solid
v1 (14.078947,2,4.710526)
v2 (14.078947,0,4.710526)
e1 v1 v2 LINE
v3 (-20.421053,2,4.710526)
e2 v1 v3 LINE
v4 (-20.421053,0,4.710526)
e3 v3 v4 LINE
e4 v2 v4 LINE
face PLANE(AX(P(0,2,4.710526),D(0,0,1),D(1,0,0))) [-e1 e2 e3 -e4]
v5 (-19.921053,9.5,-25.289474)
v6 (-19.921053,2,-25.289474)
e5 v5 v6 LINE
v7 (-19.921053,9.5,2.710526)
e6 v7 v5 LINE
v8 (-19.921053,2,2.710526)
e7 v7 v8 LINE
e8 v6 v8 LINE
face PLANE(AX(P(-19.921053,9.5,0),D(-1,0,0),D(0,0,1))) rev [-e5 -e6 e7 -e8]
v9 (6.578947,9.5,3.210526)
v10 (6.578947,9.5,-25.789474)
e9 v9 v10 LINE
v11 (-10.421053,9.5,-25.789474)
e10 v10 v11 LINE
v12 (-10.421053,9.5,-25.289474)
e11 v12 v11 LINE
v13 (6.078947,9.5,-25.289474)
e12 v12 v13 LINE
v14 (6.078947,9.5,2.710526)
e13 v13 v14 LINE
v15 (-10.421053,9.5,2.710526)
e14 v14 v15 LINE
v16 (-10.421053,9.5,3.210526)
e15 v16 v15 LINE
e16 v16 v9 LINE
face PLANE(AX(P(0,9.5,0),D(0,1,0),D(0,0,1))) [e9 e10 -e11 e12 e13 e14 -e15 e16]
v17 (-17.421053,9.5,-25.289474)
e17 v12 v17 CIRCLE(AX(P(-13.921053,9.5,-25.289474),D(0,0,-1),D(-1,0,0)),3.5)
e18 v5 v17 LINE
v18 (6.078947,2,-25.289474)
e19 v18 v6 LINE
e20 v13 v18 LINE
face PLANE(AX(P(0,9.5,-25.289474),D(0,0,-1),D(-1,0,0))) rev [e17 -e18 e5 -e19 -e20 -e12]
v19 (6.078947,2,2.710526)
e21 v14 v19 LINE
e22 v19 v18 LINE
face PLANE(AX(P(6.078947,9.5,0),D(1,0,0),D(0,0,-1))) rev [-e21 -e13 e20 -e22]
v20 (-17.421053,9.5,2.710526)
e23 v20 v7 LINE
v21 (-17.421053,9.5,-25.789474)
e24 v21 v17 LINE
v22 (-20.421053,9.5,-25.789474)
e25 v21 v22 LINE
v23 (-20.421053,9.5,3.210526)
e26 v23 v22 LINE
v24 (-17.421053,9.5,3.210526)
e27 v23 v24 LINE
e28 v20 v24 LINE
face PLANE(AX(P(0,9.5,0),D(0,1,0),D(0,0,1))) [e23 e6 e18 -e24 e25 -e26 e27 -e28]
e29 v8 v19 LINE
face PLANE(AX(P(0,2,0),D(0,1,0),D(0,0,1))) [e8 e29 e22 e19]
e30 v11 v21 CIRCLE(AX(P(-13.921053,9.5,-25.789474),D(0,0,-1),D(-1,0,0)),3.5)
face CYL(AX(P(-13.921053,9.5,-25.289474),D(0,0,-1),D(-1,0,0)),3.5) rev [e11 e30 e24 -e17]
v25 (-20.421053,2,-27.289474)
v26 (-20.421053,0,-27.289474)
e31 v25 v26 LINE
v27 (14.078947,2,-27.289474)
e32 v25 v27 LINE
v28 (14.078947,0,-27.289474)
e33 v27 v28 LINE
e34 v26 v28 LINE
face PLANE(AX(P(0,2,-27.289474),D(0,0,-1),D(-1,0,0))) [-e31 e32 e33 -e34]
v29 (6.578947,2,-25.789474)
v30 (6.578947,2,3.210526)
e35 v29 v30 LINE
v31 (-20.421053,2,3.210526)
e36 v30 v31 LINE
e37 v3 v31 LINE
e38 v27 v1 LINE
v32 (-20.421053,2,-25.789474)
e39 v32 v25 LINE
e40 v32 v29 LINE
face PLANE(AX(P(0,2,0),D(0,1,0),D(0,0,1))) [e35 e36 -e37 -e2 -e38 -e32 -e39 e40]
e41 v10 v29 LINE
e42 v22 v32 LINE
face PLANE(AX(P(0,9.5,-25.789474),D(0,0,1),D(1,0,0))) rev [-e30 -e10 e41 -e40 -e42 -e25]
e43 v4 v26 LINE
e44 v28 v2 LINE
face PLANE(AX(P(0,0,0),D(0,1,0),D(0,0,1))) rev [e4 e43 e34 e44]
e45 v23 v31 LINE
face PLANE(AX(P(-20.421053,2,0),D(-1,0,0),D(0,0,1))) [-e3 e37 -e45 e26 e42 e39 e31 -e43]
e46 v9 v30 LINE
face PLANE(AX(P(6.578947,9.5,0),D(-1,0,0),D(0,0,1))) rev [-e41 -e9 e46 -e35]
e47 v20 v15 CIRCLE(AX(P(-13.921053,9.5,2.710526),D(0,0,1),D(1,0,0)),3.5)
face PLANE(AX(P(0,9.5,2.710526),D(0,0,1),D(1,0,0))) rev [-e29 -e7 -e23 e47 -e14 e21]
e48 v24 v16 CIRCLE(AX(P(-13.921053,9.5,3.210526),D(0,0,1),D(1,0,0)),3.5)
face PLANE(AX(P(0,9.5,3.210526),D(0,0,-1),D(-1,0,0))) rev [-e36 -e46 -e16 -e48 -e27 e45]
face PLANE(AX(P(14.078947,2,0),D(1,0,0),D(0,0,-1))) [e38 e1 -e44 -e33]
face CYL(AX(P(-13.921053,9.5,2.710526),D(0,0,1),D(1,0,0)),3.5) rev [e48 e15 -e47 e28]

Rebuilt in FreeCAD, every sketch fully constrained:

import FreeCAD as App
import Part
import Sketcher
Q = App.Units.Quantity


def add_polygon(sketch, points):
    """Adds a closed chain of lines whose ends are joined by coincident constraints."""
    first, n = sketch.GeometryCount, len(points)
    for a, b in zip(points, points[1:] + points[:1]):
        sketch.addGeometry(Part.LineSegment(App.Vector(*a, 0), App.Vector(*b, 0)), False)
    for i in range(n):
        sketch.addConstraint(Sketcher.Constraint("Coincident", first + i, 2, first + (i + 1) % n, 1))

doc = App.newDocument("Part")
body = doc.addObject("PartDesign::Body", "Body")

# Sketch on XZ plane
sketch1 = body.newObject("Sketcher::SketchObject", "Sketch")
sketch1.AttachmentSupport = (doc.getObject("XZ_Plane"), [""])
sketch1.MapMode = "FlatFace"
add_polygon(sketch1, [(-20, -27), (-20, 5), (14, 5), (14, -27)])  # lines 0-3
sketch1.addConstraint([
    Sketcher.Constraint("Vertical", 0),
    Sketcher.Constraint("Horizontal", 1),
    Sketcher.Constraint("Vertical", 2),
    Sketcher.Constraint("Horizontal", 3),
    Sketcher.Constraint("DistanceY", 0, 1, 0, 2, Q("32 mm")),
    Sketcher.Constraint("DistanceX", 1, 1, 1, 2, Q("34.5 mm")),
    Sketcher.Constraint("DistanceX", 0, 2, -1, 1, Q("20.421053 mm")),
    Sketcher.Constraint("DistanceY", -1, 1, 0, 2, Q("4.710526 mm")),
])
pad1 = body.newObject("PartDesign::Pad", "Pad")
pad1.Profile = sketch1
pad1.Length = 2
pad1.Reversed = True

# Sketch on XZ plane
sketch2 = body.newObject("Sketcher::SketchObject", "Sketch001")
sketch2.AttachmentSupport = (doc.getObject("XZ_Plane"), [""])
sketch2.MapMode = "FlatFace"
add_polygon(sketch2, [(-20, -26), (-20, 3), (7, 3), (7, -26)])  # lines 0-3
add_polygon(sketch2, [(6, 3), (-20, 3), (-20, -25), (6, -25)])  # lines 4-7
sketch2.addConstraint([
    Sketcher.Constraint("Vertical", 0),
    Sketcher.Constraint("Horizontal", 1),
    Sketcher.Constraint("Vertical", 2),
    Sketcher.Constraint("Horizontal", 3),
    Sketcher.Constraint("Horizontal", 4),
    Sketcher.Constraint("Vertical", 5),
    Sketcher.Constraint("Horizontal", 6),
    Sketcher.Constraint("Vertical", 7),
    Sketcher.Constraint("DistanceX", 1, 1, 1, 2, Q("27 mm")),
    Sketcher.Constraint("DistanceX", 4, 2, 4, 1, Q("26 mm")),
    Sketcher.Constraint("DistanceY", 0, 1, 0, 2, Q("29 mm")),
    Sketcher.Constraint("DistanceY", 5, 2, 5, 1, Q("28 mm")),
    Sketcher.Constraint("DistanceX", 0, 2, 4, 2, Q("0.5 mm")),
    Sketcher.Constraint("DistanceY", 4, 2, 0, 2, Q("0.5 mm")),
    Sketcher.Constraint("DistanceX", 0, 2, -1, 1, Q("20.421053 mm")),
    Sketcher.Constraint("DistanceY", -1, 1, 0, 2, Q("3.210526 mm")),
])
pad2 = body.newObject("PartDesign::Pad", "Pad001")
pad2.Profile = sketch2
pad2.Length = 9.5
pad2.Reversed = True

# Sketch on XY plane
sketch3 = body.newObject("Sketcher::SketchObject", "Sketch002")
sketch3.AttachmentSupport = (doc.getObject("XY_Plane"), [""])
sketch3.MapMode = "FlatFace"
sketch3.AttachmentOffset = App.Placement(App.Vector(0, 0, 3.210526), App.Rotation())
sketch3.addGeometry(Part.Circle(App.Vector(-13.9, 9.5, 0), App.Vector(0, 0, 1), 3.5), False)
sketch3.addConstraint([
    Sketcher.Constraint("Diameter", 0, Q("7 mm")),
    Sketcher.Constraint("DistanceY", -1, 1, 0, 3, Q("9.5 mm")),
    Sketcher.Constraint("DistanceX", 0, 3, -1, 1, Q("13.921053 mm")),
])
pocket1 = body.newObject("PartDesign::Pocket", "Pocket")
pocket1.Profile = sketch3
pocket1.Length = 0.5

# Sketch on XY plane
sketch4 = body.newObject("Sketcher::SketchObject", "Sketch003")
sketch4.AttachmentSupport = (doc.getObject("XY_Plane"), [""])
sketch4.MapMode = "FlatFace"
sketch4.AttachmentOffset = App.Placement(App.Vector(0, 0, -25.789474), App.Rotation())
sketch4.addGeometry(Part.Circle(App.Vector(-13.9, 9.5, 0), App.Vector(0, 0, 1), 3.5), False)
sketch4.addConstraint([
    Sketcher.Constraint("Diameter", 0, Q("7 mm")),
    Sketcher.Constraint("DistanceY", -1, 1, 0, 3, Q("9.5 mm")),
    Sketcher.Constraint("DistanceX", 0, 3, -1, 1, Q("13.921053 mm")),
])
pocket2 = body.newObject("PartDesign::Pocket", "Pocket001")
pocket2.Profile = sketch4
pocket2.Length = 0.5
pocket2.Reversed = True

doc.recompute()
